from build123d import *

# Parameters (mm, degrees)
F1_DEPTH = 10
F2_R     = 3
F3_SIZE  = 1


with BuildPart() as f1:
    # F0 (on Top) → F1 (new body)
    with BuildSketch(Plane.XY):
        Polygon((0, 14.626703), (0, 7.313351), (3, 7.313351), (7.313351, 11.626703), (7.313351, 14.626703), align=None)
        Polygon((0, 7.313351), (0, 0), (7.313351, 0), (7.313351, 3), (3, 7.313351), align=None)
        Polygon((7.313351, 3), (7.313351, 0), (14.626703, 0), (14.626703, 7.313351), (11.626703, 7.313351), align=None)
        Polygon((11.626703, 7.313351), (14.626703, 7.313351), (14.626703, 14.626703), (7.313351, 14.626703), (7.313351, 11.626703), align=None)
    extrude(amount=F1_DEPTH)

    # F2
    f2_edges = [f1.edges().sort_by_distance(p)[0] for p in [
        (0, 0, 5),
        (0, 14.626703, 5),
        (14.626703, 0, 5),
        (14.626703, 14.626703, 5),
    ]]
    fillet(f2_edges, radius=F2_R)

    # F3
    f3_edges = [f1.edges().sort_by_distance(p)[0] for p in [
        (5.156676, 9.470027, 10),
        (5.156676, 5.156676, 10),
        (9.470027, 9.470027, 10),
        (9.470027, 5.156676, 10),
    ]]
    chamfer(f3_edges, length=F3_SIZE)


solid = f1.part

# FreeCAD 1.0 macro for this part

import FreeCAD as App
import Part
import Sketcher
Q = App.Units.Quantity


def edges_at(feature, points):
    """Names of the edges that pass closest to the given points."""
    edges = feature.Shape.Edges
    near = lambda p: min(range(len(edges)), key=lambda i: edges[i].distToShape(Part.Vertex(*p))[0])
    return sorted({f"Edge{near(p) + 1}" for p in points})


def add_polygon(sketch, points):
    """Adds a closed chain of lines whose ends are joined by coincident constraints."""
    first, n = sketch.GeometryCount, len(points)
    for a, b in zip(points, points[1:] + points[:1]):
        sketch.addGeometry(Part.LineSegment(App.Vector(*a, 0), App.Vector(*b, 0)), False)
    for i in range(n):
        sketch.addConstraint(Sketcher.Constraint("Coincident", first + i, 2, first + (i + 1) % n, 1))

doc = App.newDocument("Part")
body = doc.addObject("PartDesign::Body", "Body")

# Sketch on XY plane
sketch1 = body.newObject("Sketcher::SketchObject", "Sketch")
sketch1.AttachmentSupport = (doc.getObject("XY_Plane"), [""])
sketch1.MapMode = "FlatFace"
add_polygon(sketch1, [(0, 15), (0, 0), (15, 0), (15, 15)])  # lines 0-3
add_polygon(sketch1, [(12, 7), (7, 3), (3, 7), (7, 12)])  # lines 4-7
sketch1.addConstraint(Sketcher.Constraint("Vertical", 0))
sketch1.addConstraint(Sketcher.Constraint("Horizontal", 1))
sketch1.addConstraint(Sketcher.Constraint("Vertical", 2))
sketch1.addConstraint(Sketcher.Constraint("Horizontal", 3))
sketch1.addConstraint(Sketcher.Constraint("Coincident", 0, 2, -1, 1))
sketch1.addConstraint(Sketcher.Constraint("Perpendicular", 4, 5))
sketch1.addConstraint(Sketcher.Constraint("Perpendicular", 5, 6))
sketch1.addConstraint(Sketcher.Constraint("Perpendicular", 6, 7))
sketch1.addConstraint(Sketcher.Constraint("Horizontal", 5, 2, 7, 2))
sketch1.addConstraint(Sketcher.Constraint("Vertical", 4, 2, 6, 2))
sketch1.addConstraint(Sketcher.Constraint("Equal", 3, 0))
sketch1.addConstraint(Sketcher.Constraint("DistanceY", -1, 1, 4, 2, Q("3 mm")))
sketch1.addConstraint(Sketcher.Constraint("DistanceX", -1, 1, 5, 2, Q("3 mm")))
sketch1.addConstraint(Sketcher.Constraint("DistanceY", 6, 2, 3, 2, Q("3 mm")))
sketch1.addConstraint(Sketcher.Constraint("Distance", 4, Q("6.1 mm")))
pad1 = body.newObject("PartDesign::Pad", "Pad")
pad1.Profile = sketch1
pad1.Length = 10
doc.recompute()

fillet = body.newObject("PartDesign::Fillet", "Fillet")
fillet.Base = (pad1, edges_at(pad1, [
    (0, 0, 5),
    (0, 14.627, 5),
    (14.627, 0, 5),
    (14.627, 14.627, 5),
]))
fillet.Radius = 3
doc.recompute()

chamfer = body.newObject("PartDesign::Chamfer", "Chamfer")
chamfer.Base = (fillet, edges_at(fillet, [
    (5.157, 9.47, 10),
    (5.157, 5.157, 10),
    (9.47, 9.47, 10),
    (9.47, 5.157, 10),
]))
chamfer.Size = 1

doc.recompute()
